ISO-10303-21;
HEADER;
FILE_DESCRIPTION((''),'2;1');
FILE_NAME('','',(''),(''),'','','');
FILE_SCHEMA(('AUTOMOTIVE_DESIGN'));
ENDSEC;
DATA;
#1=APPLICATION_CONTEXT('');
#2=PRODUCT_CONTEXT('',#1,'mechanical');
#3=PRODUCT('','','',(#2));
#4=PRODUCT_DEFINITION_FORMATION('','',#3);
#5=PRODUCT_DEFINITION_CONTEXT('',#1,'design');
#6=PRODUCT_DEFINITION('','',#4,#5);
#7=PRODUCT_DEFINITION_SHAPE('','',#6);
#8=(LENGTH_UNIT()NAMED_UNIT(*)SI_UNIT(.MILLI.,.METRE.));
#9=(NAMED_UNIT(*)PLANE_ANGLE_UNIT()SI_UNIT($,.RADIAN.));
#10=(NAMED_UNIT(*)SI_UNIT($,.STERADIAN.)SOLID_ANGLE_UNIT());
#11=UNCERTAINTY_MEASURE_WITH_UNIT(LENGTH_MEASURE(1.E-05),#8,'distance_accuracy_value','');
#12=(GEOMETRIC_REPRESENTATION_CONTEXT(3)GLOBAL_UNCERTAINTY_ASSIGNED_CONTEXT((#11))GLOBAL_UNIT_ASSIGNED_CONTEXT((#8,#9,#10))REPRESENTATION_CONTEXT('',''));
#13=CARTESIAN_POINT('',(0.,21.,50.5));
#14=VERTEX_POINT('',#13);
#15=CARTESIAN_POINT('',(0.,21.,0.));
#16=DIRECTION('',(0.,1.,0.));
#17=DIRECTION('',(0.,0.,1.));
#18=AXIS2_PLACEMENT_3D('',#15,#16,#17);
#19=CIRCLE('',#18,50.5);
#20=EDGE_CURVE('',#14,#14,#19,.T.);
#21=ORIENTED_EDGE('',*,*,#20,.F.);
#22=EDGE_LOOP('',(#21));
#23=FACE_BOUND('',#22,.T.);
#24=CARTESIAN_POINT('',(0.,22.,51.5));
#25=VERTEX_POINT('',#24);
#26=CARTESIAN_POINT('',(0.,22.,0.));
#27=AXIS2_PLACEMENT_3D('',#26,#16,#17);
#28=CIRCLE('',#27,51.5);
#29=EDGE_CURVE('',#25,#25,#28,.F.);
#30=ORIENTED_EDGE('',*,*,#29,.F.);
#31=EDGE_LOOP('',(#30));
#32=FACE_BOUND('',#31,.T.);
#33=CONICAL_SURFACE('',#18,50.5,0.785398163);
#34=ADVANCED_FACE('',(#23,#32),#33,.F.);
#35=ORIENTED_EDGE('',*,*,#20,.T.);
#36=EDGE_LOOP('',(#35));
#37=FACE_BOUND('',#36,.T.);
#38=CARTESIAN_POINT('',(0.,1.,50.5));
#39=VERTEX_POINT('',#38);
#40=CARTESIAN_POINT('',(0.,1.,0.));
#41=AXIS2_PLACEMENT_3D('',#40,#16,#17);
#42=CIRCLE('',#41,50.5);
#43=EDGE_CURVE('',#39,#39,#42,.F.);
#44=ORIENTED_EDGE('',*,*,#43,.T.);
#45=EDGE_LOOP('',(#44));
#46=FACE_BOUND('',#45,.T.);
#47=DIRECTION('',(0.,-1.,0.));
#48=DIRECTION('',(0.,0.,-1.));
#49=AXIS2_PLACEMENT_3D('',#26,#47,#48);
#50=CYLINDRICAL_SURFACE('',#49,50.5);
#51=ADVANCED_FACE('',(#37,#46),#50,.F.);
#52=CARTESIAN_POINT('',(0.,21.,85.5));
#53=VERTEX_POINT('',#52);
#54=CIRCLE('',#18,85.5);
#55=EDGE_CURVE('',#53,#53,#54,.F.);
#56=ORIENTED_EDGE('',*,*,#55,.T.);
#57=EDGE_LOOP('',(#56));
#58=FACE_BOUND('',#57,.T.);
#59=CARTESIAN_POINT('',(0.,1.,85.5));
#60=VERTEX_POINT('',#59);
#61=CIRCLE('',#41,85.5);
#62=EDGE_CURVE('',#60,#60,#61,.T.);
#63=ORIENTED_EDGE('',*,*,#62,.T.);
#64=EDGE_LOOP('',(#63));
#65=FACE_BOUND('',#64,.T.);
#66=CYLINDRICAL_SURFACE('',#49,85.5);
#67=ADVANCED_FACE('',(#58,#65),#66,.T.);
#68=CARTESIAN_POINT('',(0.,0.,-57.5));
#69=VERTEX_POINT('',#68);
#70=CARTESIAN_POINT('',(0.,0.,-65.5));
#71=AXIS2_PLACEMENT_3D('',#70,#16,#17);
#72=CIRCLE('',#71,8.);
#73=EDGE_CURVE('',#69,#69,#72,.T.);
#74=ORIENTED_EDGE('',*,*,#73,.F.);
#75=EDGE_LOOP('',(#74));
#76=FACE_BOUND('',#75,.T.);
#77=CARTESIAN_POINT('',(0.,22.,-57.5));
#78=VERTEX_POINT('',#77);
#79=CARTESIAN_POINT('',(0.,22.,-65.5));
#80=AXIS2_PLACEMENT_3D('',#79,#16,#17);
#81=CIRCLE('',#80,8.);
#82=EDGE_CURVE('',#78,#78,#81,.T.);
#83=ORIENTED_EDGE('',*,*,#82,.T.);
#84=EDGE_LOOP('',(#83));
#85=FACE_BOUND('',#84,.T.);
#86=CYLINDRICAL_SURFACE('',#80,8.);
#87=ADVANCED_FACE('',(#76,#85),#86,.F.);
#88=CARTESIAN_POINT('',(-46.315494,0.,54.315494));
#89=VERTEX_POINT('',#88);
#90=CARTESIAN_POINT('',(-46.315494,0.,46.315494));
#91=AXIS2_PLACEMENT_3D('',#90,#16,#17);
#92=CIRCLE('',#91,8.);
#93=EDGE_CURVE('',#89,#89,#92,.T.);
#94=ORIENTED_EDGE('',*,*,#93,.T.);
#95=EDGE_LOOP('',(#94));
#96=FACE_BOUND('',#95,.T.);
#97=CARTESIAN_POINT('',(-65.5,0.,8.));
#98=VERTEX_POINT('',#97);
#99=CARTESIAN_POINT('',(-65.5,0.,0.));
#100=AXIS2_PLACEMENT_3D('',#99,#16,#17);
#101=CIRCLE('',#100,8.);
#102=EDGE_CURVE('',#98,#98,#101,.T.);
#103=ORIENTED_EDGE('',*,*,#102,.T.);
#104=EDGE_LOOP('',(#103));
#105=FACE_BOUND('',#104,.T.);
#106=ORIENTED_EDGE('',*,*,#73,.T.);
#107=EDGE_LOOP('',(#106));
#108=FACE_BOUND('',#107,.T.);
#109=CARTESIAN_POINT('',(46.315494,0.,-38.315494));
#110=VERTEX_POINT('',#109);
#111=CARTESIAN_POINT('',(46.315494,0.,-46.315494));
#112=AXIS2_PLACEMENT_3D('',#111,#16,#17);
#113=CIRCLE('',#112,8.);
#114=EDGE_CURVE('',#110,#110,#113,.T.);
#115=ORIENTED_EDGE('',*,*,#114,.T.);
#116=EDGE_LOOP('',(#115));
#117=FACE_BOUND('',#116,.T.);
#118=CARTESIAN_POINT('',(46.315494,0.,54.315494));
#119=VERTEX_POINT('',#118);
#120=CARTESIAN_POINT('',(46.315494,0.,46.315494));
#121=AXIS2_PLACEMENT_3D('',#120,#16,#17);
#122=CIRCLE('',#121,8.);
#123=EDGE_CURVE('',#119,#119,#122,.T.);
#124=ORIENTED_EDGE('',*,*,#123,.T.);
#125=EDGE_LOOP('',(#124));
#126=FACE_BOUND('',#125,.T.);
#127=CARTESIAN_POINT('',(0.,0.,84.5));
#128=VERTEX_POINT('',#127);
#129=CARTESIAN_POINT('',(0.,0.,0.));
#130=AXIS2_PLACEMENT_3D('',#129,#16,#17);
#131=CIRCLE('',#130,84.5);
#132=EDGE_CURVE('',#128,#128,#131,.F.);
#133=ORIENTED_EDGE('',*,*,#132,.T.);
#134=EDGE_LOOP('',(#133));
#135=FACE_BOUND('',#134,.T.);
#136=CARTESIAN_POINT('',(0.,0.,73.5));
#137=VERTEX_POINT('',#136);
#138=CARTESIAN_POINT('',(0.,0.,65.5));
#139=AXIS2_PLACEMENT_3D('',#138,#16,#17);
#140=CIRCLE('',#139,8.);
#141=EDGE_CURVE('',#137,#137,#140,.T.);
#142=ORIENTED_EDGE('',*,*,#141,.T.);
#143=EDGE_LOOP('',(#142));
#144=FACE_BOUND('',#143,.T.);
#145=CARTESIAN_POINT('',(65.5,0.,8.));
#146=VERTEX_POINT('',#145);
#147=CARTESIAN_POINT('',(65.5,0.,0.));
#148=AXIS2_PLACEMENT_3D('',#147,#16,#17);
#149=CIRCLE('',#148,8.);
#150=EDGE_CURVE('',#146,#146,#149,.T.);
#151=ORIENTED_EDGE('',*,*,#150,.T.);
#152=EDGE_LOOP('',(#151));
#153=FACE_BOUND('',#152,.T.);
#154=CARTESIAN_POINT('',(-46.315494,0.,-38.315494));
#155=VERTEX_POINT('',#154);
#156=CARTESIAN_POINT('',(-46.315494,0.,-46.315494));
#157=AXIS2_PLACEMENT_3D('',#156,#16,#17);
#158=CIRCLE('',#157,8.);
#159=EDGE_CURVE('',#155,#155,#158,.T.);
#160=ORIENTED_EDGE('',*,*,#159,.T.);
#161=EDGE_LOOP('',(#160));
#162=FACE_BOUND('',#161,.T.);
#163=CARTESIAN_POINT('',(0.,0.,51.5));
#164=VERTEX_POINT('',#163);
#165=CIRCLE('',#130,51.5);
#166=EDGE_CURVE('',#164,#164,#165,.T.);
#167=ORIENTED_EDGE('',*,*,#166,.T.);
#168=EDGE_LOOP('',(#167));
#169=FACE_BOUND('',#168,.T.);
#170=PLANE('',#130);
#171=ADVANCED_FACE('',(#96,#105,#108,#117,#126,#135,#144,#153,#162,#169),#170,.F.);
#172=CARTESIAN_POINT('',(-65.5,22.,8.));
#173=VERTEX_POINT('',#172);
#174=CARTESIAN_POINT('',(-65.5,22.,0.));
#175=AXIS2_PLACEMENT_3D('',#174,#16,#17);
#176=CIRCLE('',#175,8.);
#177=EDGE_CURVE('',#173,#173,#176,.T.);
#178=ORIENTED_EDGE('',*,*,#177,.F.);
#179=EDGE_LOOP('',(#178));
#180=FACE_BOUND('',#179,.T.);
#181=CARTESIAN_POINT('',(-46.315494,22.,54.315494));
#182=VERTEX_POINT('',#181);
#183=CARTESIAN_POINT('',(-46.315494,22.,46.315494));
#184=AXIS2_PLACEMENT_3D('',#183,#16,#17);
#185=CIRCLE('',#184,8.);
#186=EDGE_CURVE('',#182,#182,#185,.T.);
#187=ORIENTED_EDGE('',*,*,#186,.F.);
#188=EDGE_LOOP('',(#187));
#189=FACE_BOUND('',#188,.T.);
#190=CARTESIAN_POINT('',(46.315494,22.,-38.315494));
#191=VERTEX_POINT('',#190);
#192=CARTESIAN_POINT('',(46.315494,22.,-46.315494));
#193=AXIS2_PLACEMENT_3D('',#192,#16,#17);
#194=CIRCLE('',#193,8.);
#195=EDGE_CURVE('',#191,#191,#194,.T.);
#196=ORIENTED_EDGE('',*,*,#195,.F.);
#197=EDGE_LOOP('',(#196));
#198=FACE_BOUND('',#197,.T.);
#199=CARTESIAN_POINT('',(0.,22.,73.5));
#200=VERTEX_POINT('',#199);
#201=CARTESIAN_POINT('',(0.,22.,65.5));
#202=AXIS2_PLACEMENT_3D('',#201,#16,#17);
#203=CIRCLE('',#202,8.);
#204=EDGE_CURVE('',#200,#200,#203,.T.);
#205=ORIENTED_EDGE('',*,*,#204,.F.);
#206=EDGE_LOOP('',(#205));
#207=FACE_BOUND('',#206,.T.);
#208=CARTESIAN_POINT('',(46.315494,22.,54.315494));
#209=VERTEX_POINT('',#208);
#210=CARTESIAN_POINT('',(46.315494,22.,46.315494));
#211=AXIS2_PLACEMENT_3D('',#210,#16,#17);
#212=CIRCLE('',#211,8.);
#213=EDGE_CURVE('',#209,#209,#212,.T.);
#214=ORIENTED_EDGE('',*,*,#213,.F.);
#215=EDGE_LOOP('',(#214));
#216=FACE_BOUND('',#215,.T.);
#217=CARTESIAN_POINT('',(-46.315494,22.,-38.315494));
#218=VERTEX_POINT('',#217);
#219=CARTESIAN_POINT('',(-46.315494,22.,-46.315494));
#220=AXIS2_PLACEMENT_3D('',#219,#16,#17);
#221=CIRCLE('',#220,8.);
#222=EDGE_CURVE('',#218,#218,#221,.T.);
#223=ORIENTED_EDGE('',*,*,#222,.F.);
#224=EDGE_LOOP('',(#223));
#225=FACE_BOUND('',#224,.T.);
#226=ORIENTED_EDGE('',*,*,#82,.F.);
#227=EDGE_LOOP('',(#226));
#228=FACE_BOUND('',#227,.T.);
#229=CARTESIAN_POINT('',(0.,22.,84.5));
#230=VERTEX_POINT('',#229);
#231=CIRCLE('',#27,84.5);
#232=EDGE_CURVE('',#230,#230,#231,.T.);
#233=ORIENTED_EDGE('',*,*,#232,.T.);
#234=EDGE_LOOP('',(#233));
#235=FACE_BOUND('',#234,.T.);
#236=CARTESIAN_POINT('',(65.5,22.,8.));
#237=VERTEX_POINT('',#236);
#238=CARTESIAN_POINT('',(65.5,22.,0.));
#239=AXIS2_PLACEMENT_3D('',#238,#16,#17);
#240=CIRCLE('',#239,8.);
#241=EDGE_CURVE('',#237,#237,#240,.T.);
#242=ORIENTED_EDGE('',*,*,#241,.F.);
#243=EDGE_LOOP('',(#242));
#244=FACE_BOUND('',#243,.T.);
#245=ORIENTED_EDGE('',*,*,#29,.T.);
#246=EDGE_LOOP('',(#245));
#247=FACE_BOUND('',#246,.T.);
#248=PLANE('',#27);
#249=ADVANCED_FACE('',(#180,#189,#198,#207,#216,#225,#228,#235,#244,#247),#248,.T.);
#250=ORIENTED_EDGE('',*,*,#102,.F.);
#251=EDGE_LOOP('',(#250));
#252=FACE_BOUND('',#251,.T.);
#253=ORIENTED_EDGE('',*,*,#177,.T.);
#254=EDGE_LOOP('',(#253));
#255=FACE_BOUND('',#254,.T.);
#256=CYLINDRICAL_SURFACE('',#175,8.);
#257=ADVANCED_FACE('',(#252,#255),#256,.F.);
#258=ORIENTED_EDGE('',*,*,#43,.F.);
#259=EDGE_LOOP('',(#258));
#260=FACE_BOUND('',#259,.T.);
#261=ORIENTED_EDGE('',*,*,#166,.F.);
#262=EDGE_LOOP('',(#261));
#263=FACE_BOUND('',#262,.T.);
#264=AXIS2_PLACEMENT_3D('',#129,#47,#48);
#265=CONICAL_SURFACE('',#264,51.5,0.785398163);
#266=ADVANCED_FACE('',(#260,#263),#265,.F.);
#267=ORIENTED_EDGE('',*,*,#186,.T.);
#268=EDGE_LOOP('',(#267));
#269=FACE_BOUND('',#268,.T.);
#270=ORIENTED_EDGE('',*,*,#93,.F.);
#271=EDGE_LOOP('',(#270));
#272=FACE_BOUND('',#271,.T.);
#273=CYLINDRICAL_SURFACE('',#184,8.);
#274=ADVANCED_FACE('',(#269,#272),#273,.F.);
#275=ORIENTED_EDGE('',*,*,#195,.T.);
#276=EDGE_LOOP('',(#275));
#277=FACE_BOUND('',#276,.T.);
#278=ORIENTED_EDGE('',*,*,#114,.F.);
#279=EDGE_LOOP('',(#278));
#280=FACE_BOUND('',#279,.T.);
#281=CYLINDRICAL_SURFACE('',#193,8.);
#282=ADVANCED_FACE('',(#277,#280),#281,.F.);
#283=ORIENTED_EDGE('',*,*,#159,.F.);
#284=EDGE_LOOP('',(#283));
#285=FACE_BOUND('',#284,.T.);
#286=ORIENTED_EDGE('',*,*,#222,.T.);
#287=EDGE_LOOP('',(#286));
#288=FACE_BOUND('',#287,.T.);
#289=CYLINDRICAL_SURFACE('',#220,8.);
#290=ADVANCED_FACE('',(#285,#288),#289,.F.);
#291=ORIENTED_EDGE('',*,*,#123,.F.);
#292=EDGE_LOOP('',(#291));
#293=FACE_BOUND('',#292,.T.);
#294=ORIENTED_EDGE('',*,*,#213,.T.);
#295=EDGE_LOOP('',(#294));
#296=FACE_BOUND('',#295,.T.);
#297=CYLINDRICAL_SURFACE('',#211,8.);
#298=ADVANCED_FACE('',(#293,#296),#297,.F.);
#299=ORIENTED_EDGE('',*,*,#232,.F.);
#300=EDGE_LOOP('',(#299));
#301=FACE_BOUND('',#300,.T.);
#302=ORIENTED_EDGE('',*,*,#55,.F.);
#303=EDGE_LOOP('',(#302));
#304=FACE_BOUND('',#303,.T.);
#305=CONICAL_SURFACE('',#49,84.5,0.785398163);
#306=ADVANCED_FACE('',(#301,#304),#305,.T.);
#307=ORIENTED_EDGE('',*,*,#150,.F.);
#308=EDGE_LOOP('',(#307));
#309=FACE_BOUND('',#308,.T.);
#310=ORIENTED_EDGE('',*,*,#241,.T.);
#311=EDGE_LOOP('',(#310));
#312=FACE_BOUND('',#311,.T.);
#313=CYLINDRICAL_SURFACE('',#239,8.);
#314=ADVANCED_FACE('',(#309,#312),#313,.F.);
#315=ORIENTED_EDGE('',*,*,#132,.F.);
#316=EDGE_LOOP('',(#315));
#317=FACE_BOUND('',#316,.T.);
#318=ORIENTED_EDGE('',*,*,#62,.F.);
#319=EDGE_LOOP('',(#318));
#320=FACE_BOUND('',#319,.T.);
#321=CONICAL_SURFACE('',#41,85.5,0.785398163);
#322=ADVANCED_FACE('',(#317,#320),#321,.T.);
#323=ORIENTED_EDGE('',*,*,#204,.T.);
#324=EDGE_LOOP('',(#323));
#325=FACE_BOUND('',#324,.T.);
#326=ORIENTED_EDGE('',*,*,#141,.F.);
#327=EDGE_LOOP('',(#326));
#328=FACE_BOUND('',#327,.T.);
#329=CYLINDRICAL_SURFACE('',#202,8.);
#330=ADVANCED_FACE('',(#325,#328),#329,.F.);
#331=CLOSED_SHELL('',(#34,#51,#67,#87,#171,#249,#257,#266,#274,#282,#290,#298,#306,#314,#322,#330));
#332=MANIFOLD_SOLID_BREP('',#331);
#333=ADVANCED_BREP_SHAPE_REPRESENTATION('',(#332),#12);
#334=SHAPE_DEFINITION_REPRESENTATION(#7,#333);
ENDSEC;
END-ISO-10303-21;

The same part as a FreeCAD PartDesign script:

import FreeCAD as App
import Part
import Sketcher

V = App.Vector


def edges_at(feature, points):
    """Names of the edges that pass closest to the given points."""
    edges = feature.Shape.Edges
    near = lambda p: min(range(len(edges)), key=lambda i: edges[i].distToShape(Part.Vertex(*p))[0])
    return sorted({f"Edge{near(p) + 1}" for p in points})

doc = App.newDocument("Part")
body = doc.addObject("PartDesign::Body", "Body")

# Sketch on XZ plane
sketch1 = body.newObject("Sketcher::SketchObject", "Sketch")
sketch1.AttachmentSupport = (doc.getObject("XZ_Plane"), [""])
sketch1.MapMode = "FlatFace"
sketch1.addGeometry(Part.Circle(V(0, 0, 0), V(0, 0, 1), 86), False)
sketch1.addGeometry(Part.Circle(V(0, 0, 0), V(0, 0, 1), 50), False)
sketch1.addConstraint(Sketcher.Constraint("Coincident", 0, 3, -1, 1))
sketch1.addConstraint(Sketcher.Constraint("Coincident", 1, 3, -1, 1))
sketch1.addConstraint(Sketcher.Constraint("Diameter", 0, 171.0))
sketch1.addConstraint(Sketcher.Constraint("Diameter", 1, 101.0))
pad1 = body.newObject("PartDesign::Pad", "Pad")
pad1.Profile = sketch1
pad1.Length = 22
pad1.Reversed = True
doc.recompute()

chamfer = body.newObject("PartDesign::Chamfer", "Chamfer")
chamfer.Base = (pad1, edges_at(pad1, [
    (0, 0, -85.5),
    (0, 22, -85.5),
    (0, 0, -50.5),
    (0, 22, -50.5),
]))
chamfer.Size = 1

# Sketch on XZ plane
sketch2 = body.newObject("Sketcher::SketchObject", "Sketch001")
sketch2.AttachmentSupport = (doc.getObject("XZ_Plane"), [""])
sketch2.MapMode = "FlatFace"
sketch2.AttachmentOffset = App.Placement(V(0, 0, -22), App.Rotation())
sketch2.addGeometry(Part.Circle(V(46, -46, 0), V(0, 0, 1), 8), False)
sketch2.addGeometry(Part.Circle(V(66, 0, 0), V(0, 0, 1), 8), False)
sketch2.addGeometry(Part.Circle(V(46, 46, 0), V(0, 0, 1), 8), False)
sketch2.addGeometry(Part.Circle(V(0, 66, 0), V(0, 0, 1), 8), False)
sketch2.addGeometry(Part.Circle(V(-46, 46, 0), V(0, 0, 1), 8), False)
sketch2.addGeometry(Part.Circle(V(-66, 0, 0), V(0, 0, 1), 8), False)
sketch2.addGeometry(Part.Circle(V(-46, -46, 0), V(0, 0, 1), 8), False)
sketch2.addGeometry(Part.Circle(V(0, -66, 0), V(0, 0, 1), 8), False)
sketch2.addConstraint(Sketcher.Constraint("Equal", 0, 1))
sketch2.addConstraint(Sketcher.Constraint("Equal", 1, 2))
sketch2.addConstraint(Sketcher.Constraint("Equal", 2, 3))
sketch2.addConstraint(Sketcher.Constraint("Equal", 3, 4))
sketch2.addConstraint(Sketcher.Constraint("Equal", 4, 5))
sketch2.addConstraint(Sketcher.Constraint("Equal", 5, 6))
sketch2.addConstraint(Sketcher.Constraint("Equal", 6, 7))
sketch2.addConstraint(Sketcher.Constraint("Symmetric", 0, 3, 4, 3, -1, 1))
sketch2.addConstraint(Sketcher.Constraint("Symmetric", 1, 3, 5, 3, -1, 1))
sketch2.addConstraint(Sketcher.Constraint("Symmetric", 2, 3, 6, 3, -1, 1))
sketch2.addConstraint(Sketcher.Constraint("Symmetric", 3, 3, 7, 3, -1, 1))
sketch2.addConstraint(Sketcher.Constraint("Symmetric", 2, 3, 4, 3, -2))
sketch2.addConstraint(Sketcher.Constraint("PointOnObject", 1, 3, -1))
sketch2.addConstraint(Sketcher.Constraint("PointOnObject", 3, 3, -2))
sketch2.addConstraint(Sketcher.Constraint("Diameter", 0, 16.0))
sketch2.addConstraint(Sketcher.Constraint("DistanceX", 5, 3, 1, 3, 131.0))
sketch2.addConstraint(Sketcher.Constraint("DistanceY", -1, 1, 3, 3, 65.5))
sketch2.addConstraint(Sketcher.Constraint("DistanceY", 0, 3, 2, 3, 92.630988))
sketch2.addConstraint(Sketcher.Constraint("DistanceX", 4, 3, 2, 3, 92.630988))
doc.recompute()
hole = body.newObject("PartDesign::Hole", "Hole")
hole.Profile = sketch2
hole.ThreadType = "None"
hole.Diameter = 16
hole.DepthType = "ThroughAll"
hole.Reversed = True

doc.recompute()
